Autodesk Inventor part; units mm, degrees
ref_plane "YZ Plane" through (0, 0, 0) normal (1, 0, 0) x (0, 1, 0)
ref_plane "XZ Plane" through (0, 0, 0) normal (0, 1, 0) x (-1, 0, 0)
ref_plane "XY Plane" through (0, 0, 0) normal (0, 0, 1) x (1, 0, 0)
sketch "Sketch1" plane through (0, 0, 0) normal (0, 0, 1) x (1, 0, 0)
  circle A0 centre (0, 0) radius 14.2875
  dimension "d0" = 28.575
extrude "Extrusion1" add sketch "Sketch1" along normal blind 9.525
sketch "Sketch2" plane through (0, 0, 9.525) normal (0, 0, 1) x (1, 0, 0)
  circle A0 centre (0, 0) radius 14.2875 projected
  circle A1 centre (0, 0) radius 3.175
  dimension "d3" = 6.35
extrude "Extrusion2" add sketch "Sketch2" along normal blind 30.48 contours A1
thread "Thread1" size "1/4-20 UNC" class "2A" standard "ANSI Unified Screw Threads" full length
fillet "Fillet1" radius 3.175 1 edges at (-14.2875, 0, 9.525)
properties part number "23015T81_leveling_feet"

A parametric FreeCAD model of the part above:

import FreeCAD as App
import Part
import Sketcher

V = App.Vector
Q = App.Units.Quantity


def edges_at(feature, points):
    """Names of the edges that pass closest to the given points."""
    edges = feature.Shape.Edges
    near = lambda p: min(range(len(edges)), key=lambda i: edges[i].distToShape(Part.Vertex(*p))[0])
    return sorted({f"Edge{near(p) + 1}" for p in points})

doc = App.newDocument("Part")
params = doc.addObject("Spreadsheet::Sheet", "Params")
for row, (alias, value) in enumerate([
    ("sketch1_diameter", "1.125 in"),
    ("pad1_length", "0.375 in"),
    ("sketch2_diameter", "0.25 in"),
    ("pad2_length", "1.2 in"),
    ("fillet_radius", "0.125 in"),
], start=1):
    params.set(f"A{row}", alias)
    params.set(f"B{row}", "=" + value)
    params.setAlias(f"B{row}", alias)

body = doc.addObject("PartDesign::Body", "Body")

sketch1 = body.newObject("Sketcher::SketchObject", "Sketch")
sketch1.AttachmentSupport = (doc.getObject("XY_Plane"), [""])
sketch1.MapMode = "FlatFace"
sketch1.addGeometry(Part.Circle(V(0, 0, 0), V(0, 0, 1), 14), False)
sketch1.addConstraint(Sketcher.Constraint("Coincident", 0, 3, -1, 1))
sketch1.addConstraint(Sketcher.Constraint("Diameter", 0, Q("1.125 in")))
sketch1.setExpression("Constraints[1]", "Params.sketch1_diameter")
pad1 = body.newObject("PartDesign::Pad", "Pad")
pad1.Profile = sketch1
pad1.setExpression("Length", "Params.pad1_length")

sketch2 = body.newObject("Sketcher::SketchObject", "Sketch001")
sketch2.AttachmentSupport = (doc.getObject("XY_Plane"), [""])
sketch2.MapMode = "FlatFace"
sketch2.AttachmentOffset = App.Placement(V(0, 0, 0.375 * 25.4), App.Rotation())
sketch2.addGeometry(Part.Circle(V(0, 0, 0), V(0, 0, 1), 3.2), False)
sketch2.addConstraint(Sketcher.Constraint("Coincident", 0, 3, -1, 1))
sketch2.addConstraint(Sketcher.Constraint("Diameter", 0, Q("0.25 in")))
sketch2.setExpression("Constraints[1]", "Params.sketch2_diameter")
pad2 = body.newObject("PartDesign::Pad", "Pad001")
pad2.Profile = sketch2
pad2.setExpression("Length", "Params.pad2_length")
doc.recompute()

fillet = body.newObject("PartDesign::Fillet", "Fillet")
fillet.Base = (pad2, edges_at(pad2, [(-14.287, 0, 9.525)]))
fillet.setExpression("Radius", "Params.fillet_radius")

doc.recompute()
